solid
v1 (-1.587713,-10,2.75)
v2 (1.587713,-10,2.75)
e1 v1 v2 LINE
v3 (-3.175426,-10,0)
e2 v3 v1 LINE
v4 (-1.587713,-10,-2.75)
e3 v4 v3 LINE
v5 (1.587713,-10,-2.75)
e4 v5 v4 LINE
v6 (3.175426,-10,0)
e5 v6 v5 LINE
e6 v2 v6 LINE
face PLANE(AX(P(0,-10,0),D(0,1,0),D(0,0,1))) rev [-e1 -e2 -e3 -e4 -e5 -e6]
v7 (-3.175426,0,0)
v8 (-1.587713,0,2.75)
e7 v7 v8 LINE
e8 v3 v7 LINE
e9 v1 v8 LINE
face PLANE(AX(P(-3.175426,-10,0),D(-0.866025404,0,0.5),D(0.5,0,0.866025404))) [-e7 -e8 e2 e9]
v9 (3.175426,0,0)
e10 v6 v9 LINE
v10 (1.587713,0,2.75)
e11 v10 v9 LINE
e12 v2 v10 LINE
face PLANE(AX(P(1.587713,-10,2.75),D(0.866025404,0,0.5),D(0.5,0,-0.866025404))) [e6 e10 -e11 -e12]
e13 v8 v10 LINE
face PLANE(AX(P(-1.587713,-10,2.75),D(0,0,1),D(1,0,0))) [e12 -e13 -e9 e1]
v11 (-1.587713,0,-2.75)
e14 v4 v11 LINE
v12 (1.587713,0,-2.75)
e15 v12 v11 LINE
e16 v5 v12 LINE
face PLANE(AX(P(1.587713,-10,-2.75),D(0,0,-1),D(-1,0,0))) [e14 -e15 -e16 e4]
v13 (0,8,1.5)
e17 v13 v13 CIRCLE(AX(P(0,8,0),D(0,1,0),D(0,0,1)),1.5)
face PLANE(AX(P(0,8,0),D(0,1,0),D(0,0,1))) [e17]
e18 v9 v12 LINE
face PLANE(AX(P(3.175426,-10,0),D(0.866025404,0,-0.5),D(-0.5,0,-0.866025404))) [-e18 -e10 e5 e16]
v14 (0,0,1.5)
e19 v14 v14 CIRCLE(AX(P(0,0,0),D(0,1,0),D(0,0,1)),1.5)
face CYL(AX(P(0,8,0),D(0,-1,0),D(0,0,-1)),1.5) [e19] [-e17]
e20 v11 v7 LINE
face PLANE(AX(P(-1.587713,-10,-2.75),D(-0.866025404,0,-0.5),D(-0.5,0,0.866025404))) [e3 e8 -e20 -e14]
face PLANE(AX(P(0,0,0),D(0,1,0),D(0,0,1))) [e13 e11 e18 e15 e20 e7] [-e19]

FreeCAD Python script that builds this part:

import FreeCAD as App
import Part
import Sketcher
Q = App.Units.Quantity

doc = App.newDocument("Part")
body = doc.addObject("PartDesign::Body", "Body")

# Sketch on XZ plane
sketch1 = doc.addObject("Sketcher::SketchObject", "Sketch")
body.addObject(sketch1)
sketch1.AttachmentSupport = (doc.XZ_Plane, [""])
sketch1.MapMode = "FlatFace"
sketch1.addGeometry(Part.LineSegment(App.Vector(3.2, 0, 0), App.Vector(1.6, -2.8, 0)), False)
sketch1.addGeometry(Part.LineSegment(App.Vector(1.6, -2.8, 0), App.Vector(-1.6, -2.8, 0)), False)
sketch1.addGeometry(Part.LineSegment(App.Vector(-1.6, -2.8, 0), App.Vector(-3.2, 0, 0)), False)
sketch1.addGeometry(Part.LineSegment(App.Vector(-3.2, 0, 0), App.Vector(-1.6, 2.8, 0)), False)
sketch1.addGeometry(Part.LineSegment(App.Vector(-1.6, 2.8, 0), App.Vector(1.6, 2.8, 0)), False)
sketch1.addGeometry(Part.LineSegment(App.Vector(1.6, 2.8, 0), App.Vector(3.2, 0, 0)), False)
sketch1.addConstraint(Sketcher.Constraint("Coincident", 0, 2, 1, 1))
sketch1.addConstraint(Sketcher.Constraint("Coincident", 1, 2, 2, 1))
sketch1.addConstraint(Sketcher.Constraint("Coincident", 2, 2, 3, 1))
sketch1.addConstraint(Sketcher.Constraint("Coincident", 3, 2, 4, 1))
sketch1.addConstraint(Sketcher.Constraint("Coincident", 4, 2, 5, 1))
sketch1.addConstraint(Sketcher.Constraint("Coincident", 5, 2, 0, 1))
sketch1.addConstraint(Sketcher.Constraint("Horizontal", 1))
sketch1.addConstraint(Sketcher.Constraint("Horizontal", 4))
sketch1.addConstraint(Sketcher.Constraint("Symmetric", 0, 2, 3, 2, -1, 1))
sketch1.addConstraint(Sketcher.Constraint("Symmetric", 2, 2, 5, 2, -1, 1))
sketch1.addConstraint(Sketcher.Constraint("PointOnObject", 2, 2, -1))
sketch1.addConstraint(Sketcher.Constraint("Parallel", 2, 5))
sketch1.addConstraint(Sketcher.Constraint("Vertical", 1, 2, 3, 2))
sketch1.addConstraint(Sketcher.Constraint("Angle", 0, Q("-120 deg")))
sketch1.addConstraint(Sketcher.Constraint("DistanceY", 1, 2, 3, 2, Q("5.5 mm")))
sketch1.addConstraint(Sketcher.Constraint("DistanceX", 1, 2, 1, 1, Q("3.175426 mm")))
pad1 = doc.addObject("PartDesign::Pad", "Pad")
body.addObject(pad1)
pad1.Profile = sketch1
pad1.Length = 10

# Sketch on XZ plane
sketch2 = doc.addObject("Sketcher::SketchObject", "Sketch001")
body.addObject(sketch2)
sketch2.AttachmentSupport = (doc.XZ_Plane, [""])
sketch2.MapMode = "FlatFace"
sketch2.addGeometry(Part.Circle(App.Vector(0, 0, 0), App.Vector(0, 0, 1), 1.5), False)
sketch2.addConstraint(Sketcher.Constraint("Coincident", 0, 3, -1, 1))
sketch2.addConstraint(Sketcher.Constraint("Diameter", 0, Q("3 mm")))
pad2 = doc.addObject("PartDesign::Pad", "Pad001")
body.addObject(pad2)
pad2.Profile = sketch2
pad2.Length = 8
pad2.Reversed = True

doc.recompute()
